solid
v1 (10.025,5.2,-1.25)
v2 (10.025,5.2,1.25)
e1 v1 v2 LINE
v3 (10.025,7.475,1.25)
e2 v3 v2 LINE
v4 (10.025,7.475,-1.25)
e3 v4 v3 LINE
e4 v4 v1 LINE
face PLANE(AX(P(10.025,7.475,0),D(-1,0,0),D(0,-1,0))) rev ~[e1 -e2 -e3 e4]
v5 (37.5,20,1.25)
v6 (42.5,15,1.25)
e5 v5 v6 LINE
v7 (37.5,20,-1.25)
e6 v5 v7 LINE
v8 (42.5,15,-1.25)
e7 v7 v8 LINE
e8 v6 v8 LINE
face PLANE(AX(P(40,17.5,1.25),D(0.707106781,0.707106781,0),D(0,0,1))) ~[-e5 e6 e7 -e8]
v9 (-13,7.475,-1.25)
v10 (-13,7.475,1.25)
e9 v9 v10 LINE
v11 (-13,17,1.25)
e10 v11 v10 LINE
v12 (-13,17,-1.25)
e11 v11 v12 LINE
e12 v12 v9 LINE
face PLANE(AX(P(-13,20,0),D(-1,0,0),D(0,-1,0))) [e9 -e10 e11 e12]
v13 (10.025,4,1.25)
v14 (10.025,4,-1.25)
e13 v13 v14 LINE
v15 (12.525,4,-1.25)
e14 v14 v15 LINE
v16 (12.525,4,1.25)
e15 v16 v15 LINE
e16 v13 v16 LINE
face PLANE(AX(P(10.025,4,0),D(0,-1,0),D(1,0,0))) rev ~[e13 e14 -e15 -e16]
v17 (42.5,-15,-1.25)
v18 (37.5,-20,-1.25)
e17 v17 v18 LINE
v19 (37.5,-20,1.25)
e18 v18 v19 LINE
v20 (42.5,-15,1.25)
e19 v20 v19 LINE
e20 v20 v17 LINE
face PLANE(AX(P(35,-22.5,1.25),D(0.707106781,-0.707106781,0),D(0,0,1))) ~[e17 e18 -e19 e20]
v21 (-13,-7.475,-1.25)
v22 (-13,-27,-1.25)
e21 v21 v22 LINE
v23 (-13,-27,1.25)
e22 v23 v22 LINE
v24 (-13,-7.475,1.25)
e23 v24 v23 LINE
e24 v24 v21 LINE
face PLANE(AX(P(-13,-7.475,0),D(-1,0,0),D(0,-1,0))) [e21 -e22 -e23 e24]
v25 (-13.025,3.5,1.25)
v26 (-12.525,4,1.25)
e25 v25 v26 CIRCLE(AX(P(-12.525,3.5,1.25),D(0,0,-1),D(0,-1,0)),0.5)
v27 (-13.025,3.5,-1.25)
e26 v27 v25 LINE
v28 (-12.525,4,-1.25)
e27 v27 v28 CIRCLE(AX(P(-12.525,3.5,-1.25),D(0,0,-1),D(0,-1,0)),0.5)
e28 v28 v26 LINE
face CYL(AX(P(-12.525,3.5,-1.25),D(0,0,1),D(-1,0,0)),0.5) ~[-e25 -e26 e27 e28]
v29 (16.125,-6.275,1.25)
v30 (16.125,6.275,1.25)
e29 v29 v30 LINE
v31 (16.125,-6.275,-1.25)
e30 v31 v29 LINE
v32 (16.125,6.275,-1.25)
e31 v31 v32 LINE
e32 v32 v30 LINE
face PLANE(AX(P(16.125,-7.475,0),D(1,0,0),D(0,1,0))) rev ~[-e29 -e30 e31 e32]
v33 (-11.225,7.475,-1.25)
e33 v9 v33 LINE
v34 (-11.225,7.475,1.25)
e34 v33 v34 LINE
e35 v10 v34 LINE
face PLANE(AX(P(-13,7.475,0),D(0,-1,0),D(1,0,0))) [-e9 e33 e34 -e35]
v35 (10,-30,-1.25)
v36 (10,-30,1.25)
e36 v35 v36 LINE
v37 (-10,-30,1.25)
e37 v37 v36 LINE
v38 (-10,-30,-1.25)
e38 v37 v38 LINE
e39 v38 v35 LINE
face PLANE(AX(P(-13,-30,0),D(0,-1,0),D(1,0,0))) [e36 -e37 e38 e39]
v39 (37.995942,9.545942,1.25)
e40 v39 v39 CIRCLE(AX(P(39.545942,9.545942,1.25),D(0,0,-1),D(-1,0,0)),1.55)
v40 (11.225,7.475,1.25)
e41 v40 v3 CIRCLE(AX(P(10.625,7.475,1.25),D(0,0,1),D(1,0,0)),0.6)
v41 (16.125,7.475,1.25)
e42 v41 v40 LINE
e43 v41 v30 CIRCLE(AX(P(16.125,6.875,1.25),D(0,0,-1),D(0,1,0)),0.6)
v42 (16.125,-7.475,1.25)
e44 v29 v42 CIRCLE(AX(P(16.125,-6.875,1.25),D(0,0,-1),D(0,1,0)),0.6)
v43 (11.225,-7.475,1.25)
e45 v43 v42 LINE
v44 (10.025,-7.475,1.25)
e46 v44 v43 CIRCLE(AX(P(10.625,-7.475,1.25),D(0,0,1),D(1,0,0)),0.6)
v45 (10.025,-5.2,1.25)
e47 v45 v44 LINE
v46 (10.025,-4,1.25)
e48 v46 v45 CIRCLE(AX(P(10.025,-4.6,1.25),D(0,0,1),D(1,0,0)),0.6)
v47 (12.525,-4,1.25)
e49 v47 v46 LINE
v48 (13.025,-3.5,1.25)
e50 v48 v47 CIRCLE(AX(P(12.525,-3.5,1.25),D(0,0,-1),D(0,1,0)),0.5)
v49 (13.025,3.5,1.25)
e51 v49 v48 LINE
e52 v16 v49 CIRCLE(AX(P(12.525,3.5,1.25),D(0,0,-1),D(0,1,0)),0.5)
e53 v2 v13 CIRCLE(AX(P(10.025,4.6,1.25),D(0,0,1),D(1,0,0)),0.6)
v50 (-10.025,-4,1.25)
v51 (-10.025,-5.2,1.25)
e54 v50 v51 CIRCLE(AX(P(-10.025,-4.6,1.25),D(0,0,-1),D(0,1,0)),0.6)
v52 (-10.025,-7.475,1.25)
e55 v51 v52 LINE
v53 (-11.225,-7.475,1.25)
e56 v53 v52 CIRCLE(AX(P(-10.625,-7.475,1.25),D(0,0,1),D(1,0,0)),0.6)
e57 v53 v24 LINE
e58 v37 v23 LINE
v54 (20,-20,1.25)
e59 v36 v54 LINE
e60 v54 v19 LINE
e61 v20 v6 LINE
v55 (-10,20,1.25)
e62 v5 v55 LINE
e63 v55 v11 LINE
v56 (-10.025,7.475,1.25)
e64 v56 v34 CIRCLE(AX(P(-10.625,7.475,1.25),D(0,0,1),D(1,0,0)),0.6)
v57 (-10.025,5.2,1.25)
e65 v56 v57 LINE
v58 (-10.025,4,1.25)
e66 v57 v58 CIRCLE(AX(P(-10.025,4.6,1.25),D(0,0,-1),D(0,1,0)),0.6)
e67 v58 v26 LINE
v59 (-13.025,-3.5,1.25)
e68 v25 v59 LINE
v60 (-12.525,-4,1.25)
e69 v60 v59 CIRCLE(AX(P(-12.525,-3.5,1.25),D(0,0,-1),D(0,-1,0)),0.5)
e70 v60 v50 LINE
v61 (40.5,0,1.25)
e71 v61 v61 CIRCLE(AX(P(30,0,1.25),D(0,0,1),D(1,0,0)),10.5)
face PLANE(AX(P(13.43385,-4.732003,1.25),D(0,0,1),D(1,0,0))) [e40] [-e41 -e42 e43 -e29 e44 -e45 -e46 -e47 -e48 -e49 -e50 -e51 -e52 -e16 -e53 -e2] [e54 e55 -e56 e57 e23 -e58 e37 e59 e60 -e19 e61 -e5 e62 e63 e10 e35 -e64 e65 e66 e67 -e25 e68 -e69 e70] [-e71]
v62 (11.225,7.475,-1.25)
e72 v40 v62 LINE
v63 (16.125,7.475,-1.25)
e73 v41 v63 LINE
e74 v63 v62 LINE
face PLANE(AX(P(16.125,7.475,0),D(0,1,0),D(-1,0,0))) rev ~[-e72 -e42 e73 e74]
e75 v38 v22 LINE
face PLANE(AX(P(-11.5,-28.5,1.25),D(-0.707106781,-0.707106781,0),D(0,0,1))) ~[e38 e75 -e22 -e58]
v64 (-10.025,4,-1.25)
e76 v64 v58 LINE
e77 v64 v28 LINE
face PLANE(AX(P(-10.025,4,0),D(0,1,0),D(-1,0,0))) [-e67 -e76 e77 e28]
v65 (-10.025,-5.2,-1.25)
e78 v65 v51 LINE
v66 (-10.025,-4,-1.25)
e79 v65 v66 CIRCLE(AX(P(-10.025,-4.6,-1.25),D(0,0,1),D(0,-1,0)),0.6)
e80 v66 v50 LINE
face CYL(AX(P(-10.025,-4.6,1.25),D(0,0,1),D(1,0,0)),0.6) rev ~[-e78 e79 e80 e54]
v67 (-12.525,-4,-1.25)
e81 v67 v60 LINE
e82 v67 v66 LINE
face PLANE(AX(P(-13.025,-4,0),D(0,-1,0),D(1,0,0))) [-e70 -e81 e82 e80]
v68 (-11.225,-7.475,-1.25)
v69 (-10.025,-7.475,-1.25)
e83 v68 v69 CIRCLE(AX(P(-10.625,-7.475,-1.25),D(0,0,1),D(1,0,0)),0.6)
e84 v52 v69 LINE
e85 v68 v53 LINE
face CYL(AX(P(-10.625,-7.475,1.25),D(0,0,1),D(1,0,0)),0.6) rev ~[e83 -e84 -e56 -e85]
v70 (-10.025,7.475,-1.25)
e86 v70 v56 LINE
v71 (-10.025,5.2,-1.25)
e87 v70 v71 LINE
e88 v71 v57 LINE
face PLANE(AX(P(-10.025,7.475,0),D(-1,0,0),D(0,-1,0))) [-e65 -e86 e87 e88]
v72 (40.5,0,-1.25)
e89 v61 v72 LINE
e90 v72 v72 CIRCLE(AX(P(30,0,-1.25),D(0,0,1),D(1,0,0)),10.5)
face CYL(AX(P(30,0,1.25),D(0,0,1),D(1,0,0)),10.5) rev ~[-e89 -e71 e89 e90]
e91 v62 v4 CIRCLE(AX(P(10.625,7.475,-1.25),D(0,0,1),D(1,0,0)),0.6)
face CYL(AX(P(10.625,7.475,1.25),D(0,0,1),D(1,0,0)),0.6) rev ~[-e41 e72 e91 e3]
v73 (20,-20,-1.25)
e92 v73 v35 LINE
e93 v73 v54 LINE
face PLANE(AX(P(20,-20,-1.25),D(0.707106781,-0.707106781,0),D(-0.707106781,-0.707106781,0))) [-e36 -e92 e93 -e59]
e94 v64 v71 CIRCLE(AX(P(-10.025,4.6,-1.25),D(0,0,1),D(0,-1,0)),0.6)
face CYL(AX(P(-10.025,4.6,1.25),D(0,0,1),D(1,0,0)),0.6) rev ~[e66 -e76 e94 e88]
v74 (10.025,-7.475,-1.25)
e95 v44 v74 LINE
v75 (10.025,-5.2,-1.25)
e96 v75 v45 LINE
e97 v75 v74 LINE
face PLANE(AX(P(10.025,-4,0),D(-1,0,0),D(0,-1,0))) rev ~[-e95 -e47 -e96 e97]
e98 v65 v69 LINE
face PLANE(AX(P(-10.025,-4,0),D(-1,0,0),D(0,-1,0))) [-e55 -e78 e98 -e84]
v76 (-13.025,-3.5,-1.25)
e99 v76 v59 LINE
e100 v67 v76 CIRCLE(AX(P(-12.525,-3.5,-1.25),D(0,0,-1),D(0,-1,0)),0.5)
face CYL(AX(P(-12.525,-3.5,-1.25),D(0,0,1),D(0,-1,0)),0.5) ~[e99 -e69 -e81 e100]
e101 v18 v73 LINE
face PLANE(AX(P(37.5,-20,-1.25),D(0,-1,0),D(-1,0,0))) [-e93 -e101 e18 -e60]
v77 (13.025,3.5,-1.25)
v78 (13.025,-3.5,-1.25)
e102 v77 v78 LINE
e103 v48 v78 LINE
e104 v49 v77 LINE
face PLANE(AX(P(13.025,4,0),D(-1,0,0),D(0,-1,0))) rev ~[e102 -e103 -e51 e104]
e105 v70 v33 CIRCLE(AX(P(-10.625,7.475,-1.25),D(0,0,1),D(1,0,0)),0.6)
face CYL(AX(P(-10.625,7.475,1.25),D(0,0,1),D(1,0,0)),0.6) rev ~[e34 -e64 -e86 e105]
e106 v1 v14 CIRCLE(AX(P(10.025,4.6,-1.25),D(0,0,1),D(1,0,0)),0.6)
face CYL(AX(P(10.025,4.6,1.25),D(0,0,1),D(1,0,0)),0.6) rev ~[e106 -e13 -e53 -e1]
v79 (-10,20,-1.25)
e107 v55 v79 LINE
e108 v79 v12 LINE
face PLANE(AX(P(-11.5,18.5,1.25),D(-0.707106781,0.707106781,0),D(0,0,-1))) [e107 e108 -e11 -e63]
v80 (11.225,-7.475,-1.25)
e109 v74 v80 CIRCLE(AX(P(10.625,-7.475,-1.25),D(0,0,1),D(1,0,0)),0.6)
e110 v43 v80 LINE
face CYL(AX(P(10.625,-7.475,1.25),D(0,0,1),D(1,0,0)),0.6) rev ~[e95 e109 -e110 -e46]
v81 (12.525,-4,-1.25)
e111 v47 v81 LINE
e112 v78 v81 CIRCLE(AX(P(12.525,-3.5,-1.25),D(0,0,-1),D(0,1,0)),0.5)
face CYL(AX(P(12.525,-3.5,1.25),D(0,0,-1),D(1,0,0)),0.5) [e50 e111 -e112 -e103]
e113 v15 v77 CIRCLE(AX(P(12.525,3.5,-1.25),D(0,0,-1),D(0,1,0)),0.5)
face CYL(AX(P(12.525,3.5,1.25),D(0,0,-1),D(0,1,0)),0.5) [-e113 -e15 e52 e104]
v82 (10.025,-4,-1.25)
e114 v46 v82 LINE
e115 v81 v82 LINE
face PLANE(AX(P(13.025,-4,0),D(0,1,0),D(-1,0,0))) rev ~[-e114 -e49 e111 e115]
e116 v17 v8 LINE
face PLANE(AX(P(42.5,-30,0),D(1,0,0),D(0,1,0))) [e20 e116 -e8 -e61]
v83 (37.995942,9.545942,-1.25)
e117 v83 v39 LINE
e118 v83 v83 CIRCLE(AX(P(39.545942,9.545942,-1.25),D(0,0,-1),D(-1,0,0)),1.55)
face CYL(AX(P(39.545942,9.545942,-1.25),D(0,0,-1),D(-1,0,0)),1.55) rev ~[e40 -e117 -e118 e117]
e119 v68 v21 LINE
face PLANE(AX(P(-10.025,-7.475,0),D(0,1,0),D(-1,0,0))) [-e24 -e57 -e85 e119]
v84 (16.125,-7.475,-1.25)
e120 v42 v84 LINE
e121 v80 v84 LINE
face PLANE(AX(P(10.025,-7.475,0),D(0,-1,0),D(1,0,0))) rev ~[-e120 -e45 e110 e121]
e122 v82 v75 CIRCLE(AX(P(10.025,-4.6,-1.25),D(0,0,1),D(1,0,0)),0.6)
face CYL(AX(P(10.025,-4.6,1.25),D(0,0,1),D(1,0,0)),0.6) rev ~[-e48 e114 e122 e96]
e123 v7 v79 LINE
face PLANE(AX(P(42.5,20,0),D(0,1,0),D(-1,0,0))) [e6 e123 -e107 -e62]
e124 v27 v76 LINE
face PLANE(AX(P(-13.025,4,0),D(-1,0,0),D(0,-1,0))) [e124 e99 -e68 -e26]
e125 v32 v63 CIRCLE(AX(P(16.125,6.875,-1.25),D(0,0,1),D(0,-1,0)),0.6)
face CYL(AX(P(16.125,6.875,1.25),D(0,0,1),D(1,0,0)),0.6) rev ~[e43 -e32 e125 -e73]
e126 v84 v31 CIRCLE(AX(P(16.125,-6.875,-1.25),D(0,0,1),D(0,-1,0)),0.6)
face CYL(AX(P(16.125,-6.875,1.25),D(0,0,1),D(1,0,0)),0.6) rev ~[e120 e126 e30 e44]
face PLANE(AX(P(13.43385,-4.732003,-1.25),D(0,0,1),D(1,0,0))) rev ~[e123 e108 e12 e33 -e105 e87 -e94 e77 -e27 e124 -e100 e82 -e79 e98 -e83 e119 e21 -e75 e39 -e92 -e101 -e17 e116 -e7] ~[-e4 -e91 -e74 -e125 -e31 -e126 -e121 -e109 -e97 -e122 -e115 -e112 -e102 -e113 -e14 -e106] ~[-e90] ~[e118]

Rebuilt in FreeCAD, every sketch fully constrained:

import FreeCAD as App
import Part
import Sketcher
from FreeCAD import Vector
Q = App.Units.Quantity


def edges_at(feature, points):
    """Names of the edges that pass closest to the given points."""
    edges = feature.Shape.Edges
    near = lambda p: min(range(len(edges)), key=lambda i: edges[i].distToShape(Part.Vertex(*p))[0])
    return sorted({f"Edge{near(p) + 1}" for p in points})

doc = App.newDocument("Part")
body = doc.addObject("PartDesign::Body", "Body")

# Sketch on XY plane
sketch1 = body.newObject("Sketcher::SketchObject", "Sketch")
sketch1.AttachmentSupport = (doc.getObject("XY_Plane"), [""])
sketch1.MapMode = "FlatFace"
sketch1.addGeometry([
    Part.LineSegment(Vector(-13, 20, 0), Vector(-13, 7.5, 0)),  # 0
    Part.LineSegment(Vector(-13, 7.5, 0), Vector(-10, 7.5, 0)),  # 1
    Part.LineSegment(Vector(-10, 7.5, 0), Vector(-10, 4, 0)),  # 2
    Part.LineSegment(Vector(-10, 4, 0), Vector(-13, 4, 0)),  # 3
    Part.LineSegment(Vector(-13, 4, 0), Vector(-13, -4, 0)),  # 4
    Part.LineSegment(Vector(-13, -4, 0), Vector(-10, -4, 0)),  # 5
    Part.LineSegment(Vector(-10, -4, 0), Vector(-10, -7.5, 0)),  # 6
    Part.LineSegment(Vector(-10, -7.5, 0), Vector(-13, -7.5, 0)),  # 7
    Part.LineSegment(Vector(-13, -7.5, 0), Vector(-13, -30, 0)),  # 8
    Part.LineSegment(Vector(-13, -30, 0), Vector(42.5, -30, 0)),  # 9
    Part.LineSegment(Vector(42.5, -30, 0), Vector(42.5, 20, 0)),  # 10
    Part.LineSegment(Vector(42.5, 20, 0), Vector(-13, 20, 0)),  # 11
    Part.LineSegment(Vector(10, 4, 0), Vector(10, 7.5, 0)),  # 12
    Part.LineSegment(Vector(10, 7.5, 0), Vector(16.1, 7.5, 0)),  # 13
    Part.LineSegment(Vector(16.1, 7.5, 0), Vector(16.1, -7.5, 0)),  # 14
    Part.LineSegment(Vector(16.1, -7.5, 0), Vector(10, -7.5, 0)),  # 15
    Part.LineSegment(Vector(10, -7.5, 0), Vector(10, -4, 0)),  # 16
    Part.LineSegment(Vector(10, -4, 0), Vector(13, -4, 0)),  # 17
    Part.LineSegment(Vector(13, -4, 0), Vector(13, 4, 0)),  # 18
    Part.LineSegment(Vector(13, 4, 0), Vector(10, 4, 0)),  # 19
], False)
sketch1.addConstraint([
    Sketcher.Constraint("Coincident", 0, 2, 1, 1),
    Sketcher.Constraint("Coincident", 1, 2, 2, 1),
    Sketcher.Constraint("Coincident", 2, 2, 3, 1),
    Sketcher.Constraint("Coincident", 3, 2, 4, 1),
    Sketcher.Constraint("Coincident", 4, 2, 5, 1),
    Sketcher.Constraint("Coincident", 5, 2, 6, 1),
    Sketcher.Constraint("Coincident", 6, 2, 7, 1),
    Sketcher.Constraint("Coincident", 7, 2, 8, 1),
    Sketcher.Constraint("Coincident", 8, 2, 9, 1),
    Sketcher.Constraint("Coincident", 9, 2, 10, 1),
    Sketcher.Constraint("Coincident", 10, 2, 11, 1),
    Sketcher.Constraint("Coincident", 11, 2, 0, 1),
    Sketcher.Constraint("Coincident", 12, 2, 13, 1),
    Sketcher.Constraint("Coincident", 13, 2, 14, 1),
    Sketcher.Constraint("Coincident", 14, 2, 15, 1),
    Sketcher.Constraint("Coincident", 15, 2, 16, 1),
    Sketcher.Constraint("Coincident", 16, 2, 17, 1),
    Sketcher.Constraint("Coincident", 17, 2, 18, 1),
    Sketcher.Constraint("Coincident", 18, 2, 19, 1),
    Sketcher.Constraint("Coincident", 19, 2, 12, 1),
    Sketcher.Constraint("Vertical", 0),
    Sketcher.Constraint("Horizontal", 1),
    Sketcher.Constraint("Vertical", 2),
    Sketcher.Constraint("Horizontal", 3),
    Sketcher.Constraint("Vertical", 4),
    Sketcher.Constraint("Horizontal", 5),
    Sketcher.Constraint("Vertical", 6),
    Sketcher.Constraint("Horizontal", 7),
    Sketcher.Constraint("Vertical", 8),
    Sketcher.Constraint("Horizontal", 9),
    Sketcher.Constraint("Vertical", 10),
    Sketcher.Constraint("Horizontal", 11),
    Sketcher.Constraint("Vertical", 12),
    Sketcher.Constraint("Horizontal", 13),
    Sketcher.Constraint("Vertical", 14),
    Sketcher.Constraint("Horizontal", 15),
    Sketcher.Constraint("Vertical", 16),
    Sketcher.Constraint("Horizontal", 17),
    Sketcher.Constraint("Vertical", 18),
    Sketcher.Constraint("Horizontal", 19),
    Sketcher.Constraint("Symmetric", 6, 2, 12, 2, -1, 1),
    Sketcher.Constraint("Symmetric", 1, 2, 15, 2, -1, 1),
    Sketcher.Constraint("Symmetric", 3, 2, 17, 2, -1, 1),
    Sketcher.Constraint("Symmetric", 1, 2, 12, 2, -2),
    Sketcher.Constraint("Horizontal", 5, 2, 16, 2),
    Sketcher.Constraint("Horizontal", 3, 2, 18, 2),
    Sketcher.Constraint("Vertical", 0, 2, 7, 2),
    Sketcher.Constraint("DistanceX", 3, 2, 3, 1, Q("3 mm")),
    Sketcher.Constraint("DistanceY", 4, 2, 4, 1, Q("8 mm")),
    Sketcher.Constraint("DistanceY", 10, 1, 10, 2, Q("50 mm")),
    Sketcher.Constraint("DistanceX", 9, 1, 9, 2, Q("55.5 mm")),
    Sketcher.Constraint("DistanceX", 13, 1, 13, 2, Q("6.1 mm")),
    Sketcher.Constraint("DistanceX", 0, 2, -1, 1, Q("13 mm")),
    Sketcher.Constraint("DistanceY", 8, 2, -1, 1, Q("30 mm")),
    Sketcher.Constraint("DistanceY", 14, 2, 14, 1, Q("14.95 mm")),
    Sketcher.Constraint("DistanceX", 1, 1, 1, 2, Q("2.975 mm")),
])
pad1 = body.newObject("PartDesign::Pad", "Pad")
pad1.Profile = sketch1
pad1.Length = 2.5
pad1.Midplane = True

# Sketch on XY plane
sketch2 = body.newObject("Sketcher::SketchObject", "Sketch001")
sketch2.AttachmentSupport = (doc.getObject("XY_Plane"), [""])
sketch2.MapMode = "FlatFace"
sketch2.AttachmentOffset = App.Placement(Vector(0, 0, 1.25), App.Rotation())
sketch2.addGeometry([
    Part.Circle(Vector(10.6, 7.5, 0), Vector(0, 0, 1), 0.6),  # 0
    Part.Circle(Vector(16.1, 6.9, 0), Vector(0, 0, 1), 0.6),  # 1
    Part.Circle(Vector(10, 4.6, 0), Vector(0, 0, 1), 0.6),  # 2
    Part.Circle(Vector(10, -4.6, 0), Vector(0, 0, 1), 0.6),  # 3
    Part.Circle(Vector(10.6, -7.5, 0), Vector(0, 0, 1), 0.6),  # 4
    Part.Circle(Vector(16.1, -6.9, 0), Vector(0, 0, 1), 0.6),  # 5
    Part.Circle(Vector(-10, -4.6, 0), Vector(0, 0, 1), 0.6),  # 6
    Part.Circle(Vector(-10.6, -7.5, 0), Vector(0, 0, 1), 0.6),  # 7
    Part.Circle(Vector(-10.6, 7.5, 0), Vector(0, 0, 1), 0.6),  # 8
    Part.Circle(Vector(-10, 4.6, 0), Vector(0, 0, 1), 0.6),  # 9
], False)
sketch2.addConstraint([
    Sketcher.Constraint("Equal", 0, 1),
    Sketcher.Constraint("Equal", 1, 2),
    Sketcher.Constraint("Equal", 2, 3),
    Sketcher.Constraint("Equal", 3, 4),
    Sketcher.Constraint("Equal", 4, 5),
    Sketcher.Constraint("Equal", 5, 6),
    Sketcher.Constraint("Equal", 6, 7),
    Sketcher.Constraint("Equal", 7, 8),
    Sketcher.Constraint("Equal", 8, 9),
    Sketcher.Constraint("Symmetric", 2, 3, 6, 3, -1, 1),
    Sketcher.Constraint("Symmetric", 0, 3, 7, 3, -1, 1),
    Sketcher.Constraint("Symmetric", 4, 3, 8, 3, -1, 1),
    Sketcher.Constraint("Symmetric", 3, 3, 9, 3, -1, 1),
    Sketcher.Constraint("Symmetric", 3, 3, 6, 3, -2),
    Sketcher.Constraint("Symmetric", 4, 3, 7, 3, -2),
    Sketcher.Constraint("Symmetric", 1, 3, 5, 3, -1),
    Sketcher.Constraint("Diameter", 0, Q("1.2 mm")),
    Sketcher.Constraint("DistanceY", -1, 1, 2, 3, Q("4.6 mm")),
    Sketcher.Constraint("DistanceX", 0, 3, 1, 3, Q("5.5 mm")),
    Sketcher.Constraint("DistanceY", 1, 3, 0, 3, Q("0.6 mm")),
    Sketcher.Constraint("DistanceX", 2, 3, 0, 3, Q("0.6 mm")),
    Sketcher.Constraint("DistanceY", 4, 3, 0, 3, Q("14.95 mm")),
    Sketcher.Constraint("DistanceX", 6, 3, 3, 3, Q("20.05 mm")),
])
pocket1 = body.newObject("PartDesign::Pocket", "Pocket")
pocket1.Profile = sketch2
pocket1.Type = "ThroughAll"
doc.recompute()

fillet = body.newObject("PartDesign::Fillet", "Fillet")
fillet.Base = (pocket1, edges_at(pocket1, [
    (-13.025, -4, 0),
    (-13.025, 4, 0),
    (13.025, -4, 0),
    (13.025, 4, 0),
]))
fillet.Radius = 0.5

# Sketch on XY plane
sketch3 = body.newObject("Sketcher::SketchObject", "Sketch002")
sketch3.AttachmentSupport = (doc.getObject("XY_Plane"), [""])
sketch3.MapMode = "FlatFace"
sketch3.AttachmentOffset = App.Placement(Vector(0, 0, 1.25), App.Rotation())
sketch3.addGeometry(Part.Circle(Vector(30, 0, 0), Vector(0, 0, 1), 10), False)
sketch3.addConstraint([
    Sketcher.Constraint("PointOnObject", 0, 3, -1),
    Sketcher.Constraint("Diameter", 0, Q("21 mm")),
    Sketcher.Constraint("DistanceX", -1, 1, 0, 3, Q("30 mm")),
])
pocket2 = body.newObject("PartDesign::Pocket", "Pocket001")
pocket2.Profile = sketch3
pocket2.Type = "ThroughAll"
doc.recompute()

chamfer = body.newObject("PartDesign::Chamfer", "Chamfer")
chamfer.Base = (pocket2, edges_at(pocket2, [(42.5, 20, 0)]))
chamfer.Size = 5
doc.recompute()

chamfer2 = body.newObject("PartDesign::Chamfer", "Chamfer001")
chamfer2.Base = (chamfer, edges_at(chamfer, [(42.5, -30, 0)]))
chamfer2.Size = 15
doc.recompute()

chamfer3 = body.newObject("PartDesign::Chamfer", "Chamfer002")
chamfer3.Base = (chamfer2, edges_at(chamfer2, [(-13, -30, 0), (-13, 20, 0)]))
chamfer3.Size = 3

# Sketch on XY plane
sketch4 = body.newObject("Sketcher::SketchObject", "Sketch003")
sketch4.AttachmentSupport = (doc.getObject("XY_Plane"), [""])
sketch4.MapMode = "FlatFace"
sketch4.AttachmentOffset = App.Placement(Vector(0, 0, -1.25), App.Rotation())
sketch4.addGeometry([
    Part.LineSegment(Vector(20, -20, 0), Vector(38, -20, 0)),
    Part.LineSegment(Vector(38, -20, 0), Vector(28, -30, 0)),
    Part.LineSegment(Vector(28, -30, 0), Vector(10, -30, 0)),
    Part.LineSegment(Vector(10, -30, 0), Vector(20, -20, 0)),
], False)
sketch4.addConstraint([
    Sketcher.Constraint("Coincident", 0, 2, 1, 1),
    Sketcher.Constraint("Coincident", 1, 2, 2, 1),
    Sketcher.Constraint("Coincident", 2, 2, 3, 1),
    Sketcher.Constraint("Coincident", 3, 2, 0, 1),
    Sketcher.Constraint("Horizontal", 0),
    Sketcher.Constraint("Horizontal", 2),
    Sketcher.Constraint("Parallel", 1, 3),
    Sketcher.Constraint("Angle", 1, Q("-135 deg")),
    Sketcher.Constraint("DistanceX", 0, 1, 0, 2, Q("17.5 mm")),
    Sketcher.Constraint("DistanceY", 0, 2, -1, 1, Q("20 mm")),
    Sketcher.Constraint("DistanceY", 1, 2, -1, 1, Q("30 mm")),
    Sketcher.Constraint("DistanceX", -1, 1, 2, 2, Q("10 mm")),
])
pocket3 = body.newObject("PartDesign::Pocket", "Pocket002")
pocket3.Profile = sketch4
pocket3.Type = "ThroughAll"
pocket3.Reversed = True

# Sketch on XY plane
sketch5 = body.newObject("Sketcher::SketchObject", "Sketch004")
sketch5.AttachmentSupport = (doc.getObject("XY_Plane"), [""])
sketch5.MapMode = "FlatFace"
sketch5.AttachmentOffset = App.Placement(Vector(0, 0, -1.25), App.Rotation())
sketch5.addGeometry(Part.Circle(Vector(39.5, 9.5, 0), Vector(0, 0, 1), 1.6), False)
sketch5.addConstraint([
    Sketcher.Constraint("Diameter", 0, Q("3.1 mm")),
    Sketcher.Constraint("DistanceX", -1, 1, 0, 3, Q("39.545942 mm")),
    Sketcher.Constraint("DistanceY", -1, 1, 0, 3, Q("9.545942 mm")),
])
pocket4 = body.newObject("PartDesign::Pocket", "Pocket003")
pocket4.Profile = sketch5
pocket4.Type = "ThroughAll"
pocket4.Reversed = True

doc.recompute()
